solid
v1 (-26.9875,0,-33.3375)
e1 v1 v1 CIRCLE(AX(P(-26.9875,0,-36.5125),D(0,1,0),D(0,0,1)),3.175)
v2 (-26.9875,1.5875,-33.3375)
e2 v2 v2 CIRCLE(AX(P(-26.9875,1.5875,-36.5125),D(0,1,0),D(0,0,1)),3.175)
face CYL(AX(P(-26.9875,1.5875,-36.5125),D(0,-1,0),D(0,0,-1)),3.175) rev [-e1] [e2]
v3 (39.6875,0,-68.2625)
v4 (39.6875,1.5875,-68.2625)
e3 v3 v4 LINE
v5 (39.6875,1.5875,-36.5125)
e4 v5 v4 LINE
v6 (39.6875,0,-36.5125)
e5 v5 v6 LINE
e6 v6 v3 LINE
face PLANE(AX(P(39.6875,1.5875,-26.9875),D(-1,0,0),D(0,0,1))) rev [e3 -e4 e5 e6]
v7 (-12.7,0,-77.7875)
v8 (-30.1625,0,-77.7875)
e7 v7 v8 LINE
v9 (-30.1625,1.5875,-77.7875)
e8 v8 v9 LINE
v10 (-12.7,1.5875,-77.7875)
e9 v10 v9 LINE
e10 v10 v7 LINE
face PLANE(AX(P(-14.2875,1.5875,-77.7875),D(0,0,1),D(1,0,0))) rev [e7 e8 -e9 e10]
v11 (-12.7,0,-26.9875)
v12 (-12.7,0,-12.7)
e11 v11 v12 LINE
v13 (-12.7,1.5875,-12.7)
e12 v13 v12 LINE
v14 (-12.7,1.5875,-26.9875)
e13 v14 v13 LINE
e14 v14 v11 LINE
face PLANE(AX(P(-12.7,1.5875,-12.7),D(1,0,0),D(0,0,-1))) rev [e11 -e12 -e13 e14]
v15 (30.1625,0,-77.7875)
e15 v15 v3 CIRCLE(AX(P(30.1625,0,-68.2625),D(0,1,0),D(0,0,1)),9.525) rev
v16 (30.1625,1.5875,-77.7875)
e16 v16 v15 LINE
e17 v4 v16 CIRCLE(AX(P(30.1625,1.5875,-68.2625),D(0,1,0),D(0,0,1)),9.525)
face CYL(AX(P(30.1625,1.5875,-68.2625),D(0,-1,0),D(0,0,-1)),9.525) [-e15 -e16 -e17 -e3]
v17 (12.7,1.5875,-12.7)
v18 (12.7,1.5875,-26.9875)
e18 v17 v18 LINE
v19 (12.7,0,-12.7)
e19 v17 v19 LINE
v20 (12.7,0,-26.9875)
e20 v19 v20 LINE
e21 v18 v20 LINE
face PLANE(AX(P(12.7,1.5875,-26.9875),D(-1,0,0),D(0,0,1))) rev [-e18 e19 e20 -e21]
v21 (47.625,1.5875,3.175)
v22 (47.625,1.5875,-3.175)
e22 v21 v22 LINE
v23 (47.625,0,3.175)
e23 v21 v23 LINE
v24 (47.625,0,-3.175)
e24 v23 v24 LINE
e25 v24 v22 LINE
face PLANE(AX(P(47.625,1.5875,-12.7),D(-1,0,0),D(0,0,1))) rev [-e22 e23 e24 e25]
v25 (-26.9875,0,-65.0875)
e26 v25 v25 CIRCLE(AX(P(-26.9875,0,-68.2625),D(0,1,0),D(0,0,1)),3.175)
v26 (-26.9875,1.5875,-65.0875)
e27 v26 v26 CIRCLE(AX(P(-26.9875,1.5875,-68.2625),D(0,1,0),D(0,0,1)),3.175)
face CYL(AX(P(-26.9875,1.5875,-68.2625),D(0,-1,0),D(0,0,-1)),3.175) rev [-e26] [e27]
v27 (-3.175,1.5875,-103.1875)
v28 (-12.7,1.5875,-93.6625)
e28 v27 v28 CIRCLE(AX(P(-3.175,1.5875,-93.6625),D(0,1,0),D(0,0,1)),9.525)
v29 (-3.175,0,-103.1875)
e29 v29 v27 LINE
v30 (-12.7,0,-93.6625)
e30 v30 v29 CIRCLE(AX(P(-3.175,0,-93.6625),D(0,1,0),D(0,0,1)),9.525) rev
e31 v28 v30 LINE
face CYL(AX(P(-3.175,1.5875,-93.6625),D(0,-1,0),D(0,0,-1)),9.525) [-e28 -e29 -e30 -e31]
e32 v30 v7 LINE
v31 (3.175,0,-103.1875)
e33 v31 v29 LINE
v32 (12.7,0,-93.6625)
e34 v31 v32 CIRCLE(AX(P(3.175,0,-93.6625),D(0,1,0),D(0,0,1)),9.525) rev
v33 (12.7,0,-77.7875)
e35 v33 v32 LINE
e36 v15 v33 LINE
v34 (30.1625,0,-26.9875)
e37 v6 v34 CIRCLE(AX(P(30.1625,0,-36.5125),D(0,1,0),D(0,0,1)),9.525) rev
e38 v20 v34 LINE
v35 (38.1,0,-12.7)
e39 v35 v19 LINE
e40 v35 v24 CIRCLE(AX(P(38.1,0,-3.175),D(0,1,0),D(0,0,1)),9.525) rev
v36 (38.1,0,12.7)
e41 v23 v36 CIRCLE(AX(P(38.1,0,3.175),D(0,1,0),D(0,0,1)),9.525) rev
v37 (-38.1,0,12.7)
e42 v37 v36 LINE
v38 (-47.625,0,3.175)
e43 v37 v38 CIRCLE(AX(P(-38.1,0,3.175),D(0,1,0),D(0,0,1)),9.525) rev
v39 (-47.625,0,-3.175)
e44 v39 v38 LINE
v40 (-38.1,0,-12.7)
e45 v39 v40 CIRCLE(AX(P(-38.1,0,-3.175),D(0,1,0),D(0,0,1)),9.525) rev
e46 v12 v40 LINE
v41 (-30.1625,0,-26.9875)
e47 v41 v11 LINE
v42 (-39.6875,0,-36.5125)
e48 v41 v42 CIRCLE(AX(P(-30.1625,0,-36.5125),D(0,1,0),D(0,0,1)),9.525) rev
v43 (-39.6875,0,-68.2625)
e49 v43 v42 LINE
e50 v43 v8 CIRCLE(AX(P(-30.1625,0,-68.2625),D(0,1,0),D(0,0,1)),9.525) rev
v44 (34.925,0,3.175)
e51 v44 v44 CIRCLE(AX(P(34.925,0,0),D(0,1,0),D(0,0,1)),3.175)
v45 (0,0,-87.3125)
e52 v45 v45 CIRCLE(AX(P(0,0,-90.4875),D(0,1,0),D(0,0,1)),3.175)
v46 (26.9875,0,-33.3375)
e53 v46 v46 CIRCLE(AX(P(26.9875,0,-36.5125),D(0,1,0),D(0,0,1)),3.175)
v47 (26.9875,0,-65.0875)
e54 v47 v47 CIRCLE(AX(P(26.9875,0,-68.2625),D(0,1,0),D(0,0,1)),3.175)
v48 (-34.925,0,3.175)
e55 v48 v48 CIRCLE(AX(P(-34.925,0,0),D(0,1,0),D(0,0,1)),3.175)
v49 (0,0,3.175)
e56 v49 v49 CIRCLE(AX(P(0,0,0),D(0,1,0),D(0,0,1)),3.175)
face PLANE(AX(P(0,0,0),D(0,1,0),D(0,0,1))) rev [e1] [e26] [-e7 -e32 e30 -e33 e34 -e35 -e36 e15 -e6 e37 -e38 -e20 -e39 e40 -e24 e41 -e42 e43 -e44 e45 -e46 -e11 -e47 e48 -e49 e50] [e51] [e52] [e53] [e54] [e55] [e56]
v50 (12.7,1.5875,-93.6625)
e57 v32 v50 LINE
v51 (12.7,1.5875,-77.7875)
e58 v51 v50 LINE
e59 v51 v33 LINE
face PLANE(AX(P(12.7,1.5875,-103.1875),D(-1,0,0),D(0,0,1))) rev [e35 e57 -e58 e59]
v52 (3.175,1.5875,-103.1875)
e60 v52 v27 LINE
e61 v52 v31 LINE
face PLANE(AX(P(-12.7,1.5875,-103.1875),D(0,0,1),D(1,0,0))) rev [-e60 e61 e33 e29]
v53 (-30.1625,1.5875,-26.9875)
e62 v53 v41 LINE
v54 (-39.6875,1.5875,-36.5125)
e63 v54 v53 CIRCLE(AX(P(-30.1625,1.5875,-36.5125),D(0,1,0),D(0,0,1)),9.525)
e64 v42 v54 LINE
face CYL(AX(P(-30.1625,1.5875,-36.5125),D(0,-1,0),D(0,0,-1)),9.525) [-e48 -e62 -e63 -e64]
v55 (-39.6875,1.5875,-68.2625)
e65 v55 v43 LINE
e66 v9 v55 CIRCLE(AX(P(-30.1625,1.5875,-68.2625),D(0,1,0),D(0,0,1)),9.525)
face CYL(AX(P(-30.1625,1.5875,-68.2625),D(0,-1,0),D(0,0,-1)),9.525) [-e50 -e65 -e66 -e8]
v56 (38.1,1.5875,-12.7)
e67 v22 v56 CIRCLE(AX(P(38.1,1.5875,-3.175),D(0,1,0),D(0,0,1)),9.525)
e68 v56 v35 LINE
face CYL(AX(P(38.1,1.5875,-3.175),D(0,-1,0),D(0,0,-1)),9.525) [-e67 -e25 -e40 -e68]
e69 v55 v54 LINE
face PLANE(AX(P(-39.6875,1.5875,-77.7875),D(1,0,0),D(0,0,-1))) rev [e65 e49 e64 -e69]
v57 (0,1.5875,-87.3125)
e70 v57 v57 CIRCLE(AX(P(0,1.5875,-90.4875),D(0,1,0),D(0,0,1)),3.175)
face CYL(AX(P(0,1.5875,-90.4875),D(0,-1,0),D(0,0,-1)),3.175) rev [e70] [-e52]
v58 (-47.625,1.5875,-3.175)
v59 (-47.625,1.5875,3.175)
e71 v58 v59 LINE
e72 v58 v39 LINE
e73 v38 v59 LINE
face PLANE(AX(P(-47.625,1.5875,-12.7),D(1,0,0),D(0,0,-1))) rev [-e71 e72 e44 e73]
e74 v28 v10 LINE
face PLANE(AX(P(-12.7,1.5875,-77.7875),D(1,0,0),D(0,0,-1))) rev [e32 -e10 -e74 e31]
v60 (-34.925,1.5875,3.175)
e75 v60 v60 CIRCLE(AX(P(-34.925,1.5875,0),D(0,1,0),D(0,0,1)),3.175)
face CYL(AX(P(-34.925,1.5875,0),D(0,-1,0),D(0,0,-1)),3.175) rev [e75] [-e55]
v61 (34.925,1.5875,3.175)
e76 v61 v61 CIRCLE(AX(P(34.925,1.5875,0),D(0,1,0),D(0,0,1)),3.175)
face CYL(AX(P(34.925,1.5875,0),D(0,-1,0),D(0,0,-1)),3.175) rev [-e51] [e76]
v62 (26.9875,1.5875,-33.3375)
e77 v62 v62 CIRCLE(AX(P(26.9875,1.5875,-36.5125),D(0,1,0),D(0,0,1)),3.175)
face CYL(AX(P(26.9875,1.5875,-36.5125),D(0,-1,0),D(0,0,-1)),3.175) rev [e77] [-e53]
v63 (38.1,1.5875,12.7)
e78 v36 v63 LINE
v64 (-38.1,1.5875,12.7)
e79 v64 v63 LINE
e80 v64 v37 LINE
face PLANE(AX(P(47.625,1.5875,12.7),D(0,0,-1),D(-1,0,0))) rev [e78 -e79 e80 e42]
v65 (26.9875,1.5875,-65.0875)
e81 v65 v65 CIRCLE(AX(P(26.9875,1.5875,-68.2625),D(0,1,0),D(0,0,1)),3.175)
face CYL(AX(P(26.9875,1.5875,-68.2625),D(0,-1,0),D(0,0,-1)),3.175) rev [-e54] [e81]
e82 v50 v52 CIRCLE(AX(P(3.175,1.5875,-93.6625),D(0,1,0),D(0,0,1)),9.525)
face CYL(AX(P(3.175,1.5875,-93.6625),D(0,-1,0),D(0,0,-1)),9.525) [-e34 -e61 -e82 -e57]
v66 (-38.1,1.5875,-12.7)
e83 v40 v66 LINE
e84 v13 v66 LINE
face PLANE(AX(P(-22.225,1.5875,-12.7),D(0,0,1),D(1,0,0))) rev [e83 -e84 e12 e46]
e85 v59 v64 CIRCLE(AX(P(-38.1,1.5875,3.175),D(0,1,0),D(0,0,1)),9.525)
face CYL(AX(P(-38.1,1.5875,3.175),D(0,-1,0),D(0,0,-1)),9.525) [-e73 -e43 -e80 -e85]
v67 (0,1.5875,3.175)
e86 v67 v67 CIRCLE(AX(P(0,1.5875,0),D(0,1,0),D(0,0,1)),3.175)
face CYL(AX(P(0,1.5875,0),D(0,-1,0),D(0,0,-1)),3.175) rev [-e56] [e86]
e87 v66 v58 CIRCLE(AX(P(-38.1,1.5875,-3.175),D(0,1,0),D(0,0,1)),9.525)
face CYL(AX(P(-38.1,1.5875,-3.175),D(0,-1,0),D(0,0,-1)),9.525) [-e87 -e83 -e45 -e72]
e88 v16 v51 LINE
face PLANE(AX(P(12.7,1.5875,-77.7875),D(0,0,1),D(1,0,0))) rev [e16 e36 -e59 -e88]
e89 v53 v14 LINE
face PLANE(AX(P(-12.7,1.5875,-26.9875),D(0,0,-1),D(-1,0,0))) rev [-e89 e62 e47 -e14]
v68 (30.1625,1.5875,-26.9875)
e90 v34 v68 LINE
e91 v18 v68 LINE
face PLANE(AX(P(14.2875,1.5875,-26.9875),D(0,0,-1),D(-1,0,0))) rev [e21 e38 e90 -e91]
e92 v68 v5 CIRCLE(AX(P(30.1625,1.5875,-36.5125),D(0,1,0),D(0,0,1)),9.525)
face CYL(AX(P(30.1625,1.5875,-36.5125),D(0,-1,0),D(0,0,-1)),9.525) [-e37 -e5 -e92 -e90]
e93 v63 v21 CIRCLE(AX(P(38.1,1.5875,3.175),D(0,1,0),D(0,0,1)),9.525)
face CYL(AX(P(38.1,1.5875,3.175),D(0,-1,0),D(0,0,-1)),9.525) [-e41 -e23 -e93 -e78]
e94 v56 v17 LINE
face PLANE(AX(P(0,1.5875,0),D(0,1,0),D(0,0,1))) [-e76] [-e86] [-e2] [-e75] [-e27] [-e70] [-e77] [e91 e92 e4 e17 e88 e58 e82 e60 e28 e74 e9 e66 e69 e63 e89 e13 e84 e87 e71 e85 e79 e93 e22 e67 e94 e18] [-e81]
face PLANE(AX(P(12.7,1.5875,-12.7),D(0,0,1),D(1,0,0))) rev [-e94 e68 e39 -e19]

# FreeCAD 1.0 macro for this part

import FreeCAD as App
import Part
import Sketcher

V = App.Vector
Q = App.Units.Quantity


def edges_at(feature, points):
    """Names of the edges that pass closest to the given points."""
    edges = feature.Shape.Edges
    near = lambda p: min(range(len(edges)), key=lambda i: edges[i].distToShape(Part.Vertex(*p))[0])
    return sorted({f"Edge{near(p) + 1}" for p in points})

doc = App.newDocument("Part")
body = doc.addObject("PartDesign::Body", "Body")

# Sketch on XZ plane
sketch1 = doc.addObject("Sketcher::SketchObject", "Sketch")
body.addObject(sketch1)
sketch1.AttachmentSupport = (doc.XZ_Plane, [""])
sketch1.MapMode = "FlatFace"
sketch1.addGeometry([
    Part.LineSegment(V(47.6, -12.7, 0), V(12.7, -12.7, 0)),  # 0
    Part.LineSegment(V(12.7, -12.7, 0), V(12.7, -27, 0)),  # 1
    Part.LineSegment(V(12.7, -27, 0), V(39.7, -27, 0)),  # 2
    Part.LineSegment(V(39.7, -27, 0), V(39.7, -77.8, 0)),  # 3
    Part.LineSegment(V(39.7, -77.8, 0), V(12.7, -77.8, 0)),  # 4
    Part.LineSegment(V(12.7, -77.8, 0), V(12.7, -103.2, 0)),  # 5
    Part.LineSegment(V(12.7, -103.2, 0), V(-12.7, -103.2, 0)),  # 6
    Part.LineSegment(V(-12.7, -103.2, 0), V(-12.7, -77.8, 0)),  # 7
    Part.LineSegment(V(-12.7, -77.8, 0), V(-39.7, -77.8, 0)),  # 8
    Part.LineSegment(V(-39.7, -77.8, 0), V(-39.7, -27, 0)),  # 9
    Part.LineSegment(V(-39.7, -27, 0), V(-12.7, -27, 0)),  # 10
    Part.LineSegment(V(-12.7, -27, 0), V(-12.7, -12.7, 0)),  # 11
    Part.LineSegment(V(-12.7, -12.7, 0), V(-47.6, -12.7, 0)),  # 12
    Part.LineSegment(V(-47.6, -12.7, 0), V(-47.6, 12.7, 0)),  # 13
    Part.LineSegment(V(-47.6, 12.7, 0), V(47.6, 12.7, 0)),  # 14
    Part.LineSegment(V(47.6, 12.7, 0), V(47.6, -12.7, 0)),  # 15
    Part.Circle(V(34.9, 0, 0), V(0, 0, 1), 3.2),  # 16
    Part.Circle(V(27, -36.5, 0), V(0, 0, 1), 3.2),  # 17
    Part.Circle(V(0, 0, 0), V(0, 0, 1), 3.2),  # 18
    Part.Circle(V(-34.9, 0, 0), V(0, 0, 1), 3.2),  # 19
    Part.Circle(V(-27, -36.5, 0), V(0, 0, 1), 3.2),  # 20
    Part.Circle(V(27, -68.3, 0), V(0, 0, 1), 3.2),  # 21
    Part.Circle(V(-27, -68.3, 0), V(0, 0, 1), 3.2),  # 22
    Part.Circle(V(0, -90.5, 0), V(0, 0, 1), 3.2),  # 23
], False)
sketch1.addConstraint([
    Sketcher.Constraint("Coincident", 0, 2, 1, 1),
    Sketcher.Constraint("Coincident", 1, 2, 2, 1),
    Sketcher.Constraint("Coincident", 2, 2, 3, 1),
    Sketcher.Constraint("Coincident", 3, 2, 4, 1),
    Sketcher.Constraint("Coincident", 4, 2, 5, 1),
    Sketcher.Constraint("Coincident", 5, 2, 6, 1),
    Sketcher.Constraint("Coincident", 6, 2, 7, 1),
    Sketcher.Constraint("Coincident", 7, 2, 8, 1),
    Sketcher.Constraint("Coincident", 8, 2, 9, 1),
    Sketcher.Constraint("Coincident", 9, 2, 10, 1),
    Sketcher.Constraint("Coincident", 10, 2, 11, 1),
    Sketcher.Constraint("Coincident", 11, 2, 12, 1),
    Sketcher.Constraint("Coincident", 12, 2, 13, 1),
    Sketcher.Constraint("Coincident", 13, 2, 14, 1),
    Sketcher.Constraint("Coincident", 14, 2, 15, 1),
    Sketcher.Constraint("Coincident", 15, 2, 0, 1),
    Sketcher.Constraint("Horizontal", 0),
    Sketcher.Constraint("Vertical", 1),
    Sketcher.Constraint("Horizontal", 2),
    Sketcher.Constraint("Vertical", 3),
    Sketcher.Constraint("Horizontal", 4),
    Sketcher.Constraint("Vertical", 5),
    Sketcher.Constraint("Horizontal", 6),
    Sketcher.Constraint("Vertical", 7),
    Sketcher.Constraint("Horizontal", 8),
    Sketcher.Constraint("Vertical", 9),
    Sketcher.Constraint("Horizontal", 10),
    Sketcher.Constraint("Vertical", 11),
    Sketcher.Constraint("Horizontal", 12),
    Sketcher.Constraint("Vertical", 13),
    Sketcher.Constraint("Horizontal", 14),
    Sketcher.Constraint("Vertical", 15),
    Sketcher.Constraint("Coincident", 18, 3, -1, 1),
    Sketcher.Constraint("Equal", 16, 17),
    Sketcher.Constraint("Equal", 17, 18),
    Sketcher.Constraint("Equal", 18, 19),
    Sketcher.Constraint("Equal", 19, 20),
    Sketcher.Constraint("Equal", 20, 21),
    Sketcher.Constraint("Equal", 21, 22),
    Sketcher.Constraint("Equal", 22, 23),
    Sketcher.Constraint("Symmetric", 16, 3, 19, 3, -1, 1),
    Sketcher.Constraint("Symmetric", 12, 2, 14, 2, -1, 1),
    Sketcher.Constraint("Symmetric", 17, 3, 20, 3, -2),
    Sketcher.Constraint("Symmetric", 21, 3, 22, 3, -2),
    Sketcher.Constraint("Symmetric", 4, 2, 7, 2, -2),
    Sketcher.Constraint("Symmetric", 2, 2, 9, 2, -2),
    Sketcher.Constraint("Symmetric", 0, 2, 11, 2, -2),
    Sketcher.Constraint("PointOnObject", 16, 3, -1),
    Sketcher.Constraint("PointOnObject", 23, 3, -2),
    Sketcher.Constraint("Vertical", 17, 3, 21, 3),
    Sketcher.Constraint("Vertical", 1, 2, 4, 2),
    Sketcher.Constraint("Equal", 6, 5),
    Sketcher.Constraint("Equal", 7, 13),
    Sketcher.Constraint("Diameter", 16, Q("0.25 in")),
    Sketcher.Constraint("DistanceX", 6, 2, 6, 1, Q("1 in")),
    Sketcher.Constraint("DistanceY", 3, 2, 3, 1, Q("2 in")),
    Sketcher.Constraint("DistanceX", 14, 1, 14, 2, Q("3.75 in")),
    Sketcher.Constraint("DistanceX", 17, 3, 2, 2, Q("0.5 in")),
    Sketcher.Constraint("DistanceY", 23, 3, 3, 2, Q("0.5 in")),
    Sketcher.Constraint("DistanceX", 12, 2, 19, 3, Q("0.5 in")),
    Sketcher.Constraint("DistanceX", 2, 1, 2, 2, Q("1.0625 in")),
    Sketcher.Constraint("DistanceY", 1, 2, 1, 1, Q("0.5625 in")),
    Sketcher.Constraint("DistanceY", 21, 3, 17, 3, Q("1.25 in")),
    Sketcher.Constraint("DistanceY", 17, 3, -1, 1, Q("1.4375 in")),
])
pad1 = doc.addObject("PartDesign::Pad", "Pad")
body.addObject(pad1)
pad1.Profile = sketch1
pad1.Length = Q("0.0625 in")
pad1.Reversed = True
doc.recompute()

fillet = doc.addObject("PartDesign::Fillet", "Fillet")
body.addObject(fillet)
fillet.Base = (pad1, edges_at(pad1, [
    (47.625, 0.794, -12.7),
    (47.625, 0.794, 12.7),
    (-47.625, 0.794, 12.7),
    (-47.625, 0.794, -12.7),
    (-39.688, 0.794, -26.988),
    (-39.688, 0.794, -77.787),
    (-12.7, 0.794, -103.188),
    (12.7, 0.794, -103.188),
    (39.688, 0.794, -77.787),
    (39.688, 0.794, -26.988),
]))
fillet.Radius = Q("0.375 in")

doc.recompute()
